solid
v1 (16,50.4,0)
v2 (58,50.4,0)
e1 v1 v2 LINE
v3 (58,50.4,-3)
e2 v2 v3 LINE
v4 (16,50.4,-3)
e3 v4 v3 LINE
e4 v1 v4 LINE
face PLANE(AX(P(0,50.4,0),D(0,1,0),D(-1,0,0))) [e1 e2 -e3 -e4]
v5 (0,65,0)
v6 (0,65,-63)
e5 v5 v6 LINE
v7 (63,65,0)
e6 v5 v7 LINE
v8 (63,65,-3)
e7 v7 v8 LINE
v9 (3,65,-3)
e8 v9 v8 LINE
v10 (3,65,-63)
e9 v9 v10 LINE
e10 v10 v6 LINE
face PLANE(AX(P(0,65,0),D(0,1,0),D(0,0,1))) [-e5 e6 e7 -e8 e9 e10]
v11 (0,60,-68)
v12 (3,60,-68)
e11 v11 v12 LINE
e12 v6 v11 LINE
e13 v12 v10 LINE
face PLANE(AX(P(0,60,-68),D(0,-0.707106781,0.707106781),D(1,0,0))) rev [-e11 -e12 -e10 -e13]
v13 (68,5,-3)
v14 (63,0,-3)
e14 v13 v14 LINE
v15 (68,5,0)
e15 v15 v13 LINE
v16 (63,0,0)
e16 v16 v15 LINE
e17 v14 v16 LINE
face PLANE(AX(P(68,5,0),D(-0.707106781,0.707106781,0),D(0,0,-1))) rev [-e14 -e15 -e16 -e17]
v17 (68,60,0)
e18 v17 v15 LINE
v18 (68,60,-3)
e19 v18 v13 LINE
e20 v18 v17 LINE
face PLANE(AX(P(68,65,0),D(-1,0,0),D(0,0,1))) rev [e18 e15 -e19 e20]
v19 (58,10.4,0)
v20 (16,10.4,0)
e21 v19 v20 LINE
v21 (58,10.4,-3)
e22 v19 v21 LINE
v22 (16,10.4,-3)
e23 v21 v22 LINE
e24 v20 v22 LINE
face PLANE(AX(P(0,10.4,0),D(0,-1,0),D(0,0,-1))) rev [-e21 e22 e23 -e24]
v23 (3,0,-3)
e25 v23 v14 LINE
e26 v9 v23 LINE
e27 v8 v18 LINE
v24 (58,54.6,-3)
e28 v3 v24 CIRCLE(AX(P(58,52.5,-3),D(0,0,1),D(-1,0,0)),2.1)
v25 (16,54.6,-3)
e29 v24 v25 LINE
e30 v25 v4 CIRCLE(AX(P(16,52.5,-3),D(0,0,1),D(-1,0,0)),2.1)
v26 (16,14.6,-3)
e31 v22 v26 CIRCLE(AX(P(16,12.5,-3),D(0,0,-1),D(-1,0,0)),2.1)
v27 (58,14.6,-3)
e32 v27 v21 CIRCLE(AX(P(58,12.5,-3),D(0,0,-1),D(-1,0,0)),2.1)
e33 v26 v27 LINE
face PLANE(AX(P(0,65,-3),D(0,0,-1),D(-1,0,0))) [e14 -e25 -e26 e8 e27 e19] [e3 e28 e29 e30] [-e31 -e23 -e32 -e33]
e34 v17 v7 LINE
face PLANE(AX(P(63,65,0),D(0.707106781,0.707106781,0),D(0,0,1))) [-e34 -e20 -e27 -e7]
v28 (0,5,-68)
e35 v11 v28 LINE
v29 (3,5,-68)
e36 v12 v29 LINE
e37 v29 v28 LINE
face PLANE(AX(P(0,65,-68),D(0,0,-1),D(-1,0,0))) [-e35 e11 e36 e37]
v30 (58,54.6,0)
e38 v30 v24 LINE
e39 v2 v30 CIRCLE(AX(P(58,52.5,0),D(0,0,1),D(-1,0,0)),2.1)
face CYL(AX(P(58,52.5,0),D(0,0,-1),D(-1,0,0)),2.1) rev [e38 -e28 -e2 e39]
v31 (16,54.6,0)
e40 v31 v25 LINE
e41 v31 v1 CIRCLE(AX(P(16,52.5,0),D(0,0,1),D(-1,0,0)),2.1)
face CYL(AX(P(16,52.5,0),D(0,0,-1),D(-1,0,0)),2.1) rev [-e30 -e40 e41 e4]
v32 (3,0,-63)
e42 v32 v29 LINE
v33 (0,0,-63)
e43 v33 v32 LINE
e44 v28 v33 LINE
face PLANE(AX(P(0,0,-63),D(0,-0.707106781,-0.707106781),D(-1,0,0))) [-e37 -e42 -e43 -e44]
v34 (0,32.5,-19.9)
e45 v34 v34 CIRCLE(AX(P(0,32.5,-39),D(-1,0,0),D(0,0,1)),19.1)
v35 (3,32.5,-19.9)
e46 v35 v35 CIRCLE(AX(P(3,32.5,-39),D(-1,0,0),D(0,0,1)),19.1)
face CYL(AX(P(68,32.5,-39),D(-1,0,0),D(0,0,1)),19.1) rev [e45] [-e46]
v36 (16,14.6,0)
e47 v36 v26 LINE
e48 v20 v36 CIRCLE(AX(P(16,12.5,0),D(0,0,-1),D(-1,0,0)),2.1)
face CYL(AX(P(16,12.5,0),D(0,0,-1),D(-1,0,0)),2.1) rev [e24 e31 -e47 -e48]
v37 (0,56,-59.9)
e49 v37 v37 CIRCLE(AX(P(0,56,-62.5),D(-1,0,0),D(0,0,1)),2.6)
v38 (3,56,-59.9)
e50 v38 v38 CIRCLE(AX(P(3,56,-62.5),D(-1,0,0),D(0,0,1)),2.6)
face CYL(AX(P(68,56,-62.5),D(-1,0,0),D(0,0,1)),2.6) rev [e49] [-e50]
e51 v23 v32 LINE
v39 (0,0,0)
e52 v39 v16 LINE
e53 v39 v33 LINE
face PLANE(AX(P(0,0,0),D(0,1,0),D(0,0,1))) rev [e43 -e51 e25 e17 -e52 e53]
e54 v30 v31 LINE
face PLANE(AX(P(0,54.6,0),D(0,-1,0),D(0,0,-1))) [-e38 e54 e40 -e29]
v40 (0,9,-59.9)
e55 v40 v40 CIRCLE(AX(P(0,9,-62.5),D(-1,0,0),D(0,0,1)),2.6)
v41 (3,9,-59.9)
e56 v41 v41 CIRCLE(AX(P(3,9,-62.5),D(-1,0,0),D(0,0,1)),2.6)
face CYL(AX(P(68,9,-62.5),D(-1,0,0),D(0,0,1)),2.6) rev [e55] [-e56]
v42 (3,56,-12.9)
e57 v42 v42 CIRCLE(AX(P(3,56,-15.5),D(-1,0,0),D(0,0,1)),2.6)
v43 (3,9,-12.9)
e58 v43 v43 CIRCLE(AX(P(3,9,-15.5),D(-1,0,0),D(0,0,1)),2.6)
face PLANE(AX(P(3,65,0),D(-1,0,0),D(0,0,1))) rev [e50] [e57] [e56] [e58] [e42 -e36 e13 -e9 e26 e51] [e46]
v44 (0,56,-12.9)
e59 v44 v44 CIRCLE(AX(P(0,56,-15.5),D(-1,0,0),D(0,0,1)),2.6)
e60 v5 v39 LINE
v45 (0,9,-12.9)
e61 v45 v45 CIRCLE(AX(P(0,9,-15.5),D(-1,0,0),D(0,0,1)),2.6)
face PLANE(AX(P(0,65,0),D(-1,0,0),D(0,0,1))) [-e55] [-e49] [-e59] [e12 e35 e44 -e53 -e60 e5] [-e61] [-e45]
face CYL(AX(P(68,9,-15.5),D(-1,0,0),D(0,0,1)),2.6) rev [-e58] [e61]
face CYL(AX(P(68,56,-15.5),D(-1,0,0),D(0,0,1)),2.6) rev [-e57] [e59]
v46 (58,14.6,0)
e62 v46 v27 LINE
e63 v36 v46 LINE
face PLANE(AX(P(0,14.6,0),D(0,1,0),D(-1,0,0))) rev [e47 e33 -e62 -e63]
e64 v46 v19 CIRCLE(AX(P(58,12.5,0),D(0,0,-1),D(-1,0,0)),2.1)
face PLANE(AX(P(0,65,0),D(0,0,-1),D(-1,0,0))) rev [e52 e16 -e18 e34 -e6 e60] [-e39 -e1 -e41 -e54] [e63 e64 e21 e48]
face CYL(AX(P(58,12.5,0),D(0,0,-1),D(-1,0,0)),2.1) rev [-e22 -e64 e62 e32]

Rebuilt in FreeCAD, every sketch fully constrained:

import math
import FreeCAD as App
import Part
import Sketcher
from FreeCAD import Vector
Q = App.Units.Quantity


def edges_at(feature, points):
    """Names of the edges that pass closest to the given points."""
    edges = feature.Shape.Edges
    near = lambda p: min(range(len(edges)), key=lambda i: edges[i].distToShape(Part.Vertex(*p))[0])
    return sorted({f"Edge{near(p) + 1}" for p in points})


def add_polygon(sketch, points):
    """Adds a closed chain of lines whose ends are joined by coincident constraints."""
    first, n = sketch.GeometryCount, len(points)
    for a, b in zip(points, points[1:] + points[:1]):
        sketch.addGeometry(Part.LineSegment(App.Vector(*a, 0), App.Vector(*b, 0)), False)
    for i in range(n):
        sketch.addConstraint(Sketcher.Constraint("Coincident", first + i, 2, first + (i + 1) % n, 1))

doc = App.newDocument("Part")
params = doc.addObject("Spreadsheet::Sheet", "Params")
for row, (alias, value) in enumerate([
    ("sketch1_width", "68 mm"),
    ("sketch1_width2", "65 mm"),
    ("pad1_length", "65 mm"),
    ("sketch2_diameter", "38.2 mm"),
    ("sketch2_diameter2", "5.2 mm"),
    ("sketch3_radius", "2.1 mm"),
    ("sketch3_width", "42 mm"),
    ("chamfer_size", "5 mm"),
], start=1):
    params.set(f"A{row}", alias)
    params.set(f"B{row}", "=" + value)
    params.setAlias(f"B{row}", alias)

body = doc.addObject("PartDesign::Body", "Body")

# Sketch on XZ plane
sketch1 = body.newObject("Sketcher::SketchObject", "Sketch")
sketch1.AttachmentSupport = (doc.getObject("XZ_Plane"), [""])
sketch1.MapMode = "FlatFace"
add_polygon(sketch1, [(0, 0), (68, 0), (68, -3), (3, -3), (3, -68), (0, -68)])  # lines 0-5
sketch1.addConstraint(Sketcher.Constraint("Horizontal", 0))
sketch1.addConstraint(Sketcher.Constraint("Vertical", 1))
sketch1.addConstraint(Sketcher.Constraint("Horizontal", 2))
sketch1.addConstraint(Sketcher.Constraint("Vertical", 3))
sketch1.addConstraint(Sketcher.Constraint("Horizontal", 4))
sketch1.addConstraint(Sketcher.Constraint("Vertical", 5))
sketch1.addConstraint(Sketcher.Constraint("Coincident", 5, 2, -1, 1))
sketch1.addConstraint(Sketcher.Constraint("Equal", 4, 1))
sketch1.addConstraint(Sketcher.Constraint("Equal", 2, 3))
sketch1.addConstraint(Sketcher.Constraint("DistanceX", 0, 1, 0, 2, Q("68 mm")))
sketch1.addConstraint(Sketcher.Constraint("DistanceX", 2, 2, 2, 1, Q("65 mm")))
sketch1.setExpression("Constraints[15]", "Params.sketch1_width")
sketch1.setExpression("Constraints[16]", "Params.sketch1_width2")
pad1 = body.newObject("PartDesign::Pad", "Pad")
pad1.Profile = sketch1
pad1.setExpression("Length", "Params.pad1_length")
pad1.Reversed = True

# Sketch on YZ plane
sketch2 = body.newObject("Sketcher::SketchObject", "Sketch001")
sketch2.AttachmentSupport = (doc.getObject("YZ_Plane"), [""])
sketch2.MapMode = "FlatFace"
sketch2.addGeometry(Part.Circle(Vector(32.5, -39, 0), Vector(0, 0, 1), 19.1), False)
sketch2.addGeometry(Part.Circle(Vector(56, -62.5, 0), Vector(0, 0, 1), 2.6), False)
sketch2.addGeometry(Part.Circle(Vector(9, -62.5, 0), Vector(0, 0, 1), 2.6), False)
sketch2.addGeometry(Part.Circle(Vector(56, -15.5, 0), Vector(0, 0, 1), 2.6), False)
sketch2.addGeometry(Part.Circle(Vector(9, -15.5, 0), Vector(0, 0, 1), 2.6), False)
sketch2.addConstraint(Sketcher.Constraint("Equal", 1, 2))
sketch2.addConstraint(Sketcher.Constraint("Equal", 2, 3))
sketch2.addConstraint(Sketcher.Constraint("Equal", 3, 4))
sketch2.addConstraint(Sketcher.Constraint("Horizontal", 1, 3, 2, 3))
sketch2.addConstraint(Sketcher.Constraint("Horizontal", 3, 3, 4, 3))
sketch2.addConstraint(Sketcher.Constraint("Vertical", 1, 3, 3, 3))
sketch2.addConstraint(Sketcher.Constraint("Vertical", 2, 3, 4, 3))
sketch2.addConstraint(Sketcher.Constraint("Diameter", 0, Q("38.2 mm")))
sketch2.addConstraint(Sketcher.Constraint("Diameter", 1, Q("5.2 mm")))
sketch2.addConstraint(Sketcher.Constraint("DistanceY", 0, 3, -1, 1, Q("39 mm")))
sketch2.addConstraint(Sketcher.Constraint("DistanceX", -1, 1, 1, 3, Q("56 mm")))
sketch2.addConstraint(Sketcher.Constraint("DistanceX", -1, 1, 2, 3, Q("9 mm")))
sketch2.addConstraint(Sketcher.Constraint("DistanceY", 1, 3, 3, 3, Q("47 mm")))
sketch2.addConstraint(Sketcher.Constraint("DistanceX", -1, 1, 0, 3, Q("32.5 mm")))
sketch2.addConstraint(Sketcher.Constraint("DistanceY", 1, 3, -1, 1, Q("62.5 mm")))
sketch2.setExpression("Constraints[7]", "Params.sketch2_diameter")
sketch2.setExpression("Constraints[8]", "Params.sketch2_diameter2")
pocket1 = body.newObject("PartDesign::Pocket", "Pocket")
pocket1.Profile = sketch2
pocket1.Type = "ThroughAll"
pocket1.Reversed = True

# Sketch on XY plane
sketch3 = body.newObject("Sketcher::SketchObject", "Sketch002")
sketch3.AttachmentSupport = (doc.getObject("XY_Plane"), [""])
sketch3.MapMode = "FlatFace"
sketch3.AttachmentOffset = App.Placement(Vector(0, 0, -3), App.Rotation())
sketch3.addGeometry(Part.LineSegment(Vector(16, 14.6, 0), Vector(58, 14.6, 0)), False)
sketch3.addGeometry(Part.ArcOfCircle(Part.Circle(Vector(58, 12.5, 0), Vector(0, 0, 1), 2.1), math.radians(-90), math.radians(90)), False)
sketch3.addGeometry(Part.LineSegment(Vector(58, 10.4, 0), Vector(16, 10.4, 0)), False)
sketch3.addGeometry(Part.ArcOfCircle(Part.Circle(Vector(16, 12.5, 0), Vector(0, 0, 1), 2.1), math.radians(90), math.radians(270)), False)
sketch3.addConstraint(Sketcher.Constraint("Tangent", 0, 2, 1, 2))
sketch3.addConstraint(Sketcher.Constraint("Tangent", 1, 1, 2, 1))
sketch3.addConstraint(Sketcher.Constraint("Tangent", 2, 2, 3, 2))
sketch3.addConstraint(Sketcher.Constraint("Tangent", 3, 1, 0, 1))
sketch3.addConstraint(Sketcher.Constraint("Horizontal", 0))
sketch3.addConstraint(Sketcher.Constraint("Horizontal", 2))
sketch3.addConstraint(Sketcher.Constraint("Radius", 1, Q("2.1 mm")))
sketch3.addConstraint(Sketcher.Constraint("DistanceX", 0, 1, 0, 2, Q("42 mm")))
sketch3.addConstraint(Sketcher.Constraint("DistanceX", -1, 1, 1, 3, Q("58 mm")))
sketch3.addConstraint(Sketcher.Constraint("DistanceY", -1, 1, 1, 3, Q("12.5 mm")))
sketch3.setExpression("Constraints[6]", "Params.sketch3_radius")
sketch3.setExpression("Constraints[7]", "Params.sketch3_width")
pocket2 = body.newObject("PartDesign::Pocket", "Pocket001")
pocket2.Profile = sketch3
pocket2.Type = "ThroughAll"
pocket2.Reversed = True
doc.recompute()

datumplane = body.newObject("PartDesign::Plane", "DatumPlane")
datumplane.AttachmentSupport = (doc.getObject("XZ_Plane"), [""])
datumplane.MapMode = "FlatFace"
datumplane.AttachmentOffset = App.Placement(Vector(0, 0, -32.5), App.Rotation())
mirrored = body.newObject("PartDesign::Mirrored", "Mirrored")
mirrored.Originals = [pocket2]
mirrored.MirrorPlane = (datumplane, [""])
body.Tip = mirrored
doc.recompute()

chamfer = body.newObject("PartDesign::Chamfer", "Chamfer")
chamfer.Base = (mirrored, edges_at(mirrored, [
    (1.5, 65, -68),
    (68, 65, -1.5),
    (68, 0, -1.5),
    (1.5, 0, -68),
]))
chamfer.setExpression("Size", "Params.chamfer_size")

doc.recompute()
